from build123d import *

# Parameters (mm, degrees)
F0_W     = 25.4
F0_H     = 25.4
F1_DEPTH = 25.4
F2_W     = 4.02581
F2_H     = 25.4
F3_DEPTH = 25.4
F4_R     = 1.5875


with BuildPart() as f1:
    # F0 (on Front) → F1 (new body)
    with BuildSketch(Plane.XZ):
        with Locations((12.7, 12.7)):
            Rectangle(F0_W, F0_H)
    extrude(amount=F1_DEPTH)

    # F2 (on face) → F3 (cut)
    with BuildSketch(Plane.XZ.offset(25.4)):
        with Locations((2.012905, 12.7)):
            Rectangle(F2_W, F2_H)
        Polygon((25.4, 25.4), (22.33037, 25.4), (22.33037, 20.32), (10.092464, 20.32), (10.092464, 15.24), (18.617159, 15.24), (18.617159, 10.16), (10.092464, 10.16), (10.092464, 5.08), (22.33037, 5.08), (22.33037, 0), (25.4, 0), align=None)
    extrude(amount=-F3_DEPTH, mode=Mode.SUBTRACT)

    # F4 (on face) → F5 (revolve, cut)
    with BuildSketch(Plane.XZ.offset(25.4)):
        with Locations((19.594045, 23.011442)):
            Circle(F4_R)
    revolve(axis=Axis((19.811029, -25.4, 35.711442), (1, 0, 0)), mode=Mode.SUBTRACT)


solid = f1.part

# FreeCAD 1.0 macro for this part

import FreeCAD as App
import Part
import Sketcher
from FreeCAD import Vector
Q = App.Units.Quantity

doc = App.newDocument("Part")
body = doc.addObject("PartDesign::Body", "Body")

# Sketch on XZ plane
sketch1 = body.newObject("Sketcher::SketchObject", "Sketch")
sketch1.AttachmentSupport = (doc.getObject("XZ_Plane"), [""])
sketch1.MapMode = "FlatFace"
sketch1.addGeometry([
    Part.LineSegment(Vector(0, 25.4, 0), Vector(0, 0, 0)),
    Part.LineSegment(Vector(0, 0, 0), Vector(25.4, 0, 0)),
    Part.LineSegment(Vector(25.4, 0, 0), Vector(25.4, 25.4, 0)),
    Part.LineSegment(Vector(25.4, 25.4, 0), Vector(0, 25.4, 0)),
], False)
sketch1.addConstraint([
    Sketcher.Constraint("Coincident", 0, 2, 1, 1),
    Sketcher.Constraint("Coincident", 1, 2, 2, 1),
    Sketcher.Constraint("Coincident", 2, 2, 3, 1),
    Sketcher.Constraint("Coincident", 3, 2, 0, 1),
    Sketcher.Constraint("Vertical", 0),
    Sketcher.Constraint("Horizontal", 1),
    Sketcher.Constraint("Vertical", 2),
    Sketcher.Constraint("Horizontal", 3),
    Sketcher.Constraint("Coincident", 0, 2, -1, 1),
    Sketcher.Constraint("Equal", 3, 0),
    Sketcher.Constraint("DistanceX", 1, 1, 1, 2, Q("1 in")),
])
pad1 = body.newObject("PartDesign::Pad", "Pad")
pad1.Profile = sketch1
pad1.Length = Q("1 in")

# Sketch on XZ plane
sketch2 = body.newObject("Sketcher::SketchObject", "Sketch001")
sketch2.AttachmentSupport = (doc.getObject("XZ_Plane"), [""])
sketch2.MapMode = "FlatFace"
sketch2.AttachmentOffset = App.Placement(Vector(0, 0, 1 * 25.4), App.Rotation())
sketch2.addGeometry([
    Part.LineSegment(Vector(0, 25.4, 0), Vector(0, 0, 0)),  # 0
    Part.LineSegment(Vector(0, 0, 0), Vector(4.02581, 0, 0)),  # 1
    Part.LineSegment(Vector(4.02581, 0, 0), Vector(4.02581, 25.4, 0)),  # 2
    Part.LineSegment(Vector(4.02581, 25.4, 0), Vector(0, 25.4, 0)),  # 3
    Part.LineSegment(Vector(25.4, 25.4, 0), Vector(22.33037, 25.4, 0)),  # 4
    Part.LineSegment(Vector(22.33037, 25.4, 0), Vector(22.33037, 20.32, 0)),  # 5
    Part.LineSegment(Vector(22.33037, 20.32, 0), Vector(10.092464, 20.32, 0)),  # 6
    Part.LineSegment(Vector(10.092464, 20.32, 0), Vector(10.092464, 15.24, 0)),  # 7
    Part.LineSegment(Vector(10.092464, 15.24, 0), Vector(18.617159, 15.24, 0)),  # 8
    Part.LineSegment(Vector(18.617159, 15.24, 0), Vector(18.617159, 10.16, 0)),  # 9
    Part.LineSegment(Vector(18.617159, 10.16, 0), Vector(10.092464, 10.16, 0)),  # 10
    Part.LineSegment(Vector(10.092464, 10.16, 0), Vector(10.092464, 5.08, 0)),  # 11
    Part.LineSegment(Vector(10.092464, 5.08, 0), Vector(22.33037, 5.08, 0)),  # 12
    Part.LineSegment(Vector(22.33037, 5.08, 0), Vector(22.33037, 0, 0)),  # 13
    Part.LineSegment(Vector(22.33037, 0, 0), Vector(25.4, 0, 0)),  # 14
    Part.LineSegment(Vector(25.4, 0, 0), Vector(25.4, 25.4, 0)),  # 15
], False)
sketch2.addConstraint([
    Sketcher.Constraint("Coincident", 0, 2, 1, 1),
    Sketcher.Constraint("Coincident", 1, 2, 2, 1),
    Sketcher.Constraint("Coincident", 2, 2, 3, 1),
    Sketcher.Constraint("Coincident", 3, 2, 0, 1),
    Sketcher.Constraint("Coincident", 4, 2, 5, 1),
    Sketcher.Constraint("Coincident", 5, 2, 6, 1),
    Sketcher.Constraint("Coincident", 6, 2, 7, 1),
    Sketcher.Constraint("Coincident", 7, 2, 8, 1),
    Sketcher.Constraint("Coincident", 8, 2, 9, 1),
    Sketcher.Constraint("Coincident", 9, 2, 10, 1),
    Sketcher.Constraint("Coincident", 10, 2, 11, 1),
    Sketcher.Constraint("Coincident", 11, 2, 12, 1),
    Sketcher.Constraint("Coincident", 12, 2, 13, 1),
    Sketcher.Constraint("Coincident", 13, 2, 14, 1),
    Sketcher.Constraint("Coincident", 14, 2, 15, 1),
    Sketcher.Constraint("Coincident", 15, 2, 4, 1),
    Sketcher.Constraint("Vertical", 0),
    Sketcher.Constraint("Horizontal", 1),
    Sketcher.Constraint("Vertical", 2),
    Sketcher.Constraint("Horizontal", 3),
    Sketcher.Constraint("Horizontal", 4),
    Sketcher.Constraint("Vertical", 5),
    Sketcher.Constraint("Horizontal", 6),
    Sketcher.Constraint("Vertical", 7),
    Sketcher.Constraint("Horizontal", 8),
    Sketcher.Constraint("Vertical", 9),
    Sketcher.Constraint("Horizontal", 10),
    Sketcher.Constraint("Vertical", 11),
    Sketcher.Constraint("Horizontal", 12),
    Sketcher.Constraint("Vertical", 13),
    Sketcher.Constraint("Horizontal", 14),
    Sketcher.Constraint("Vertical", 15),
    Sketcher.Constraint("Coincident", 0, 2, -1, 1),
    Sketcher.Constraint("PointOnObject", 13, 2, -1),
    Sketcher.Constraint("Horizontal", 3, 2, 4, 2),
    Sketcher.Constraint("Vertical", 7, 2, 10, 2),
    Sketcher.Constraint("Vertical", 5, 2, 12, 2),
    Sketcher.Constraint("Equal", 5, 7),
    Sketcher.Constraint("Equal", 7, 9),
    Sketcher.Constraint("Equal", 9, 11),
    Sketcher.Constraint("Equal", 11, 13),
    Sketcher.Constraint("DistanceY", 0, 2, 0, 1, Q("1 in")),
    Sketcher.Constraint("DistanceX", -1, 1, 14, 2, Q("1 in")),
    Sketcher.Constraint("DistanceX", 1, 1, 1, 2, Q("4.02581 mm")),
    Sketcher.Constraint("DistanceX", 4, 2, 4, 1, Q("3.06963 mm")),
    Sketcher.Constraint("DistanceX", 6, 2, 6, 1, Q("12.237906 mm")),
    Sketcher.Constraint("DistanceX", 8, 1, 8, 2, Q("8.524695 mm")),
])
pocket1 = body.newObject("PartDesign::Pocket", "Pocket")
pocket1.Profile = sketch2
pocket1.Length = Q("1 in")

# Sketch on XZ plane
sketch3 = body.newObject("Sketcher::SketchObject", "Sketch002")
sketch3.AttachmentSupport = (doc.getObject("XZ_Plane"), [""])
sketch3.MapMode = "FlatFace"
sketch3.AttachmentOffset = App.Placement(Vector(0, 0, 1 * 25.4), App.Rotation())
sketch3.addGeometry(Part.Circle(Vector(19.594045, 23.011442, 0), Vector(0, 0, 1), 1.5875), False)
sketch3.addGeometry(Part.LineSegment(Vector(19.594045, 35.711442, 0), Vector(29.594045, 35.711442, 0)), True)  # axis
sketch3.addConstraint([
    Sketcher.Constraint("Horizontal", 1),
    Sketcher.Constraint("Vertical", 0, 3, 1, 1),
    Sketcher.Constraint("Diameter", 0, Q("0.125 in")),
    Sketcher.Constraint("DistanceY", 0, 3, 1, 1, Q("0.5 in")),
    Sketcher.Constraint("DistanceX", 1, 1, 1, 2, Q("10 mm")),
    Sketcher.Constraint("DistanceY", -1, 1, 0, 3, Q("23.011442 mm")),
    Sketcher.Constraint("DistanceX", -1, 1, 0, 3, Q("19.594045 mm")),
])
groove = body.newObject("PartDesign::Groove", "Groove")
groove.Profile = sketch3
groove.ReferenceAxis = (sketch3, ["Axis0"])
groove.Angle = 360

doc.recompute()
